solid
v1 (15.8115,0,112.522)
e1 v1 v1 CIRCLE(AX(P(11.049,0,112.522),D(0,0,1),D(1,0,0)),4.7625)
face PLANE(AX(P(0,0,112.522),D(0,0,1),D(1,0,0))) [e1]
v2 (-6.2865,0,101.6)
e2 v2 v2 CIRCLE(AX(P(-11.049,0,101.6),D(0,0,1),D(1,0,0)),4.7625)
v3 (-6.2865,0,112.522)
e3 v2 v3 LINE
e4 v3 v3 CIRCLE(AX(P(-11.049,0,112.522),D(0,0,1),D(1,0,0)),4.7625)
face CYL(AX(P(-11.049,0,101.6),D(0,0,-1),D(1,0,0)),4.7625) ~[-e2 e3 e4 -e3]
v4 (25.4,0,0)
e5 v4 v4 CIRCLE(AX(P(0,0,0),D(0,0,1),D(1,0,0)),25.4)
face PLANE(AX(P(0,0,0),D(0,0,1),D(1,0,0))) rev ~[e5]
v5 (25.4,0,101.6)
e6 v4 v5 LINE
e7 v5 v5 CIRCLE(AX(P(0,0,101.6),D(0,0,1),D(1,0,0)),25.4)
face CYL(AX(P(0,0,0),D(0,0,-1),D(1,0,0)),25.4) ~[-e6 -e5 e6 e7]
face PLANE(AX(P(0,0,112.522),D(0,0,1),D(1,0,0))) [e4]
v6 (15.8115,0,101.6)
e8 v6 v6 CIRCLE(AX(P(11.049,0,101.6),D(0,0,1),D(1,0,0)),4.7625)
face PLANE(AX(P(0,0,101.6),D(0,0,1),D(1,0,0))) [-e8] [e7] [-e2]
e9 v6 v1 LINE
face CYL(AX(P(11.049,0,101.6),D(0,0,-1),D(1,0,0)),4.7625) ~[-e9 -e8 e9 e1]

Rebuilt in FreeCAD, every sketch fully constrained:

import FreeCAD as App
import Part
import Sketcher
from FreeCAD import Vector
Q = App.Units.Quantity

doc = App.newDocument("Part")
body = doc.addObject("PartDesign::Body", "Body")

sketch1 = doc.addObject("Sketcher::SketchObject", "Sketch")
body.addObject(sketch1)
sketch1.AttachmentSupport = (doc.XY_Plane, [""])
sketch1.MapMode = "FlatFace"
sketch1.addGeometry(Part.Circle(Vector(0, 0, 0), Vector(0, 0, 1), 25), False)
sketch1.addConstraint(Sketcher.Constraint("Coincident", 0, 3, -1, 1))
sketch1.addConstraint(Sketcher.Constraint("Diameter", 0, Q("2 in")))
pad1 = doc.addObject("PartDesign::Pad", "Pad")
body.addObject(pad1)
pad1.Profile = sketch1
pad1.Length = Q("4 in")

sketch2 = doc.addObject("Sketcher::SketchObject", "Sketch001")
body.addObject(sketch2)
sketch2.AttachmentSupport = (doc.XY_Plane, [""])
sketch2.MapMode = "FlatFace"
sketch2.AttachmentOffset = App.Placement(Vector(0, 0, 4 * 25.4), App.Rotation())
sketch2.addGeometry(Part.Circle(Vector(-11, 0, 0), Vector(0, 0, 1), 4.8), False)
sketch2.addGeometry(Part.Circle(Vector(11, 0, 0), Vector(0, 0, 1), 4.8), False)
sketch2.addConstraint(Sketcher.Constraint("Equal", 0, 1))
sketch2.addConstraint(Sketcher.Constraint("Symmetric", 0, 3, 1, 3, -1, 1))
sketch2.addConstraint(Sketcher.Constraint("PointOnObject", 0, 3, -1))
sketch2.addConstraint(Sketcher.Constraint("Diameter", 0, Q("0.375 in")))
sketch2.addConstraint(Sketcher.Constraint("DistanceX", 0, 3, 1, 3, Q("0.87 in")))
pad2 = doc.addObject("PartDesign::Pad", "Pad001")
body.addObject(pad2)
pad2.Profile = sketch2
pad2.Length = Q("0.43 in")

doc.recompute()
